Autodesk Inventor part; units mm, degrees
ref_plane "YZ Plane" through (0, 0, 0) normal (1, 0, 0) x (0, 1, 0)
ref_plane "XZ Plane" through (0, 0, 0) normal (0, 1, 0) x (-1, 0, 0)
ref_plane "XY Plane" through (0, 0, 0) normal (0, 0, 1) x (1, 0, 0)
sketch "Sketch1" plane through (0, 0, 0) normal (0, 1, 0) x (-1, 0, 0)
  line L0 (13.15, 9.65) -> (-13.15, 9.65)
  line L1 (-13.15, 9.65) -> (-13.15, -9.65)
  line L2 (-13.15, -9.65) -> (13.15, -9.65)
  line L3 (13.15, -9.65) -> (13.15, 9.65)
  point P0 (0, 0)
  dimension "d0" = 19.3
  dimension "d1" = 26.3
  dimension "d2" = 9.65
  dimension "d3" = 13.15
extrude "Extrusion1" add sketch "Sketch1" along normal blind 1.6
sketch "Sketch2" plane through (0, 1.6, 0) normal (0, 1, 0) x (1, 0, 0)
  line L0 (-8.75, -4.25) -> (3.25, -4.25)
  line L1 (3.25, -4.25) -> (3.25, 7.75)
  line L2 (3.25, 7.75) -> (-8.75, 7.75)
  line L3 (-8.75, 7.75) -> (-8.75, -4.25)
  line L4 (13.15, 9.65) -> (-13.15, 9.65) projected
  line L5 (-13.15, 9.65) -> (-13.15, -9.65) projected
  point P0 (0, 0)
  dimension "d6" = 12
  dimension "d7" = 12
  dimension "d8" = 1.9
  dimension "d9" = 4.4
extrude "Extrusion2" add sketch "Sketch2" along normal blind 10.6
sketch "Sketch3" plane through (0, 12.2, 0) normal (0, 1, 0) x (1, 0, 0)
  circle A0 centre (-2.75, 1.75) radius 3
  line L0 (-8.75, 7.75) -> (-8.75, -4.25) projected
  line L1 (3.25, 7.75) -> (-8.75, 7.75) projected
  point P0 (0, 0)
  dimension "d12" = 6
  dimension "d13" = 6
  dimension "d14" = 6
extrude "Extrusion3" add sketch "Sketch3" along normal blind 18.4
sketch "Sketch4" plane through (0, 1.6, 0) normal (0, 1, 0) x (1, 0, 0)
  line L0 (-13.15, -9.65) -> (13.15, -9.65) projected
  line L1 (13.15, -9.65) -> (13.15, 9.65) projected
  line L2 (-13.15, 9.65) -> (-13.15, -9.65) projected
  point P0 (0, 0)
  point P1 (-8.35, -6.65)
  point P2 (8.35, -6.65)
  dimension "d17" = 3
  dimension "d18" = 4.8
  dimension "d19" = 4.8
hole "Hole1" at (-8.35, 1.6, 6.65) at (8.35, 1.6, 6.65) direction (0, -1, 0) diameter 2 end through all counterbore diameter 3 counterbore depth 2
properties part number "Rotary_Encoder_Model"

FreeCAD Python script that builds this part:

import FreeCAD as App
import Part
import Sketcher

V = App.Vector


def add_polygon(sketch, points):
    """Adds a closed chain of lines whose ends are joined by coincident constraints."""
    first, n = sketch.GeometryCount, len(points)
    for a, b in zip(points, points[1:] + points[:1]):
        sketch.addGeometry(Part.LineSegment(App.Vector(*a, 0), App.Vector(*b, 0)), False)
    for i in range(n):
        sketch.addConstraint(Sketcher.Constraint("Coincident", first + i, 2, first + (i + 1) % n, 1))

doc = App.newDocument("Part")
body = doc.addObject("PartDesign::Body", "Body")

# Sketch on XZ plane
sketch1 = doc.addObject("Sketcher::SketchObject", "Sketch")
body.addObject(sketch1)
sketch1.AttachmentSupport = (doc.XZ_Plane, [""])
sketch1.MapMode = "FlatFace"
add_polygon(sketch1, [(-13, -10), (-13, 10), (13, 10), (13, -10)])  # lines 0-3
sketch1.addConstraint([
    Sketcher.Constraint("Vertical", 0),
    Sketcher.Constraint("Horizontal", 1),
    Sketcher.Constraint("Vertical", 2),
    Sketcher.Constraint("Horizontal", 3),
    Sketcher.Constraint("Symmetric", 0, 2, 2, 2, -1, 1),
    Sketcher.Constraint("DistanceX", 1, 1, 1, 2, 26.3),
    Sketcher.Constraint("DistanceY", 0, 1, 0, 2, 19.3),
])
pad1 = doc.addObject("PartDesign::Pad", "Pad")
body.addObject(pad1)
pad1.Profile = sketch1
pad1.Length = 1.6
pad1.Reversed = True

# Sketch on XZ plane
sketch2 = doc.addObject("Sketcher::SketchObject", "Sketch001")
body.addObject(sketch2)
sketch2.AttachmentSupport = (doc.XZ_Plane, [""])
sketch2.MapMode = "FlatFace"
sketch2.AttachmentOffset = App.Placement(V(0, 0, -1.6), App.Rotation())
add_polygon(sketch2, [(-9, -8), (-9, 4), (3, 4), (3, -8)])  # lines 0-3
sketch2.addConstraint([
    Sketcher.Constraint("Vertical", 0),
    Sketcher.Constraint("Horizontal", 1),
    Sketcher.Constraint("Vertical", 2),
    Sketcher.Constraint("Horizontal", 3),
    Sketcher.Constraint("Equal", 3, 0),
    Sketcher.Constraint("DistanceX", 1, 1, 1, 2, 12.0),
    Sketcher.Constraint("DistanceX", 0, 2, -1, 1, 8.75),
    Sketcher.Constraint("DistanceY", -1, 1, 0, 2, 4.25),
])
pad2 = doc.addObject("PartDesign::Pad", "Pad001")
body.addObject(pad2)
pad2.Profile = sketch2
pad2.Length = 10.6
pad2.Reversed = True

# Sketch on XZ plane
sketch3 = doc.addObject("Sketcher::SketchObject", "Sketch002")
body.addObject(sketch3)
sketch3.AttachmentSupport = (doc.XZ_Plane, [""])
sketch3.MapMode = "FlatFace"
sketch3.AttachmentOffset = App.Placement(V(0, 0, -12.2), App.Rotation())
sketch3.addGeometry(Part.Circle(V(-2.8, -1.8, 0), V(0, 0, 1), 3), False)
sketch3.addConstraint([
    Sketcher.Constraint("Diameter", 0, 6.0),
    Sketcher.Constraint("DistanceX", 0, 3, -1, 1, 2.75),
    Sketcher.Constraint("DistanceY", 0, 3, -1, 1, 1.75),
])
pad3 = doc.addObject("PartDesign::Pad", "Pad002")
body.addObject(pad3)
pad3.Profile = sketch3
pad3.Length = 18.4
pad3.Reversed = True

# Sketch on XZ plane
sketch4 = doc.addObject("Sketcher::SketchObject", "Sketch003")
body.addObject(sketch4)
sketch4.AttachmentSupport = (doc.XZ_Plane, [""])
sketch4.MapMode = "FlatFace"
sketch4.AttachmentOffset = App.Placement(V(0, 0, -1.6), App.Rotation())
sketch4.addGeometry([
    Part.Circle(V(-8.3, 6.7, 0), V(0, 0, 1), 1),
    Part.Circle(V(8.3, 6.7, 0), V(0, 0, 1), 1),
], False)
sketch4.addConstraint([
    Sketcher.Constraint("Equal", 0, 1),
    Sketcher.Constraint("Symmetric", 0, 3, 1, 3, -2),
    Sketcher.Constraint("Diameter", 0, 2.0),
    Sketcher.Constraint("DistanceX", 0, 3, 1, 3, 16.7),
    Sketcher.Constraint("DistanceY", -1, 1, 0, 3, 6.65),
])
doc.recompute()
hole = doc.addObject("PartDesign::Hole", "Hole")
body.addObject(hole)
hole.Profile = sketch4
hole.ThreadType = "None"
hole.Diameter = 2
hole.DepthType = "ThroughAll"
hole.HoleCutType = "Counterbore"
hole.HoleCutDiameter = 3
hole.HoleCutDepth = 2
hole.Reversed = True

doc.recompute()
